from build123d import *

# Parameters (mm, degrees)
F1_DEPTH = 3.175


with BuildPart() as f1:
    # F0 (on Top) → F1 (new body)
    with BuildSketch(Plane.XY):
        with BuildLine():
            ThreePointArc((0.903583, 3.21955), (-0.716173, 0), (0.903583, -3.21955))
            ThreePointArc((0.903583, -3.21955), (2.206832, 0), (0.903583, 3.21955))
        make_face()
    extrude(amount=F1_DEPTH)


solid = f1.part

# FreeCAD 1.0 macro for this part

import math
import FreeCAD as App
import Part
import Sketcher
from FreeCAD import Vector
Q = App.Units.Quantity

doc = App.newDocument("Part")
params = doc.addObject("Spreadsheet::Sheet", "Params")
for row, (alias, value) in enumerate([
    ("pad1_length", "0.125 in"),
], start=1):
    params.set(f"A{row}", alias)
    params.set(f"B{row}", "=" + value)
    params.setAlias(f"B{row}", alias)

body = doc.addObject("PartDesign::Body", "Body")

# Sketch on XY plane
sketch1 = body.newObject("Sketcher::SketchObject", "Sketch")
sketch1.AttachmentSupport = (doc.getObject("XY_Plane"), [""])
sketch1.MapMode = "FlatFace"
sketch1.addGeometry([
    Part.ArcOfCircle(Part.Circle(Vector(3.3, 0, 0), Vector(0, 0, 1), 4), math.radians(127), math.radians(233)),
    Part.ArcOfCircle(Part.Circle(Vector(-2.4, 0, 0), Vector(0, 0, 1), 4.6), math.radians(-44), math.radians(44)),
], False)
sketch1.addConstraint([
    Sketcher.Constraint("Coincident", 0, 1, 1, 2),
    Sketcher.Constraint("Coincident", 1, 1, 0, 2),
    Sketcher.Constraint("Symmetric", 0, 1, 1, 1, -1),
    Sketcher.Constraint("Radius", 0, 4.009589),
    Sketcher.Constraint("DistanceX", 1, 3, 0, 3, Q("0.225 in")),
    Sketcher.Constraint("Radius", 1, 4.628417),
    Sketcher.Constraint("DistanceX", -1, 1, 0, 3, 3.293416),
])
pad1 = body.newObject("PartDesign::Pad", "Pad")
pad1.Profile = sketch1
pad1.setExpression("Length", "Params.pad1_length")

doc.recompute()
